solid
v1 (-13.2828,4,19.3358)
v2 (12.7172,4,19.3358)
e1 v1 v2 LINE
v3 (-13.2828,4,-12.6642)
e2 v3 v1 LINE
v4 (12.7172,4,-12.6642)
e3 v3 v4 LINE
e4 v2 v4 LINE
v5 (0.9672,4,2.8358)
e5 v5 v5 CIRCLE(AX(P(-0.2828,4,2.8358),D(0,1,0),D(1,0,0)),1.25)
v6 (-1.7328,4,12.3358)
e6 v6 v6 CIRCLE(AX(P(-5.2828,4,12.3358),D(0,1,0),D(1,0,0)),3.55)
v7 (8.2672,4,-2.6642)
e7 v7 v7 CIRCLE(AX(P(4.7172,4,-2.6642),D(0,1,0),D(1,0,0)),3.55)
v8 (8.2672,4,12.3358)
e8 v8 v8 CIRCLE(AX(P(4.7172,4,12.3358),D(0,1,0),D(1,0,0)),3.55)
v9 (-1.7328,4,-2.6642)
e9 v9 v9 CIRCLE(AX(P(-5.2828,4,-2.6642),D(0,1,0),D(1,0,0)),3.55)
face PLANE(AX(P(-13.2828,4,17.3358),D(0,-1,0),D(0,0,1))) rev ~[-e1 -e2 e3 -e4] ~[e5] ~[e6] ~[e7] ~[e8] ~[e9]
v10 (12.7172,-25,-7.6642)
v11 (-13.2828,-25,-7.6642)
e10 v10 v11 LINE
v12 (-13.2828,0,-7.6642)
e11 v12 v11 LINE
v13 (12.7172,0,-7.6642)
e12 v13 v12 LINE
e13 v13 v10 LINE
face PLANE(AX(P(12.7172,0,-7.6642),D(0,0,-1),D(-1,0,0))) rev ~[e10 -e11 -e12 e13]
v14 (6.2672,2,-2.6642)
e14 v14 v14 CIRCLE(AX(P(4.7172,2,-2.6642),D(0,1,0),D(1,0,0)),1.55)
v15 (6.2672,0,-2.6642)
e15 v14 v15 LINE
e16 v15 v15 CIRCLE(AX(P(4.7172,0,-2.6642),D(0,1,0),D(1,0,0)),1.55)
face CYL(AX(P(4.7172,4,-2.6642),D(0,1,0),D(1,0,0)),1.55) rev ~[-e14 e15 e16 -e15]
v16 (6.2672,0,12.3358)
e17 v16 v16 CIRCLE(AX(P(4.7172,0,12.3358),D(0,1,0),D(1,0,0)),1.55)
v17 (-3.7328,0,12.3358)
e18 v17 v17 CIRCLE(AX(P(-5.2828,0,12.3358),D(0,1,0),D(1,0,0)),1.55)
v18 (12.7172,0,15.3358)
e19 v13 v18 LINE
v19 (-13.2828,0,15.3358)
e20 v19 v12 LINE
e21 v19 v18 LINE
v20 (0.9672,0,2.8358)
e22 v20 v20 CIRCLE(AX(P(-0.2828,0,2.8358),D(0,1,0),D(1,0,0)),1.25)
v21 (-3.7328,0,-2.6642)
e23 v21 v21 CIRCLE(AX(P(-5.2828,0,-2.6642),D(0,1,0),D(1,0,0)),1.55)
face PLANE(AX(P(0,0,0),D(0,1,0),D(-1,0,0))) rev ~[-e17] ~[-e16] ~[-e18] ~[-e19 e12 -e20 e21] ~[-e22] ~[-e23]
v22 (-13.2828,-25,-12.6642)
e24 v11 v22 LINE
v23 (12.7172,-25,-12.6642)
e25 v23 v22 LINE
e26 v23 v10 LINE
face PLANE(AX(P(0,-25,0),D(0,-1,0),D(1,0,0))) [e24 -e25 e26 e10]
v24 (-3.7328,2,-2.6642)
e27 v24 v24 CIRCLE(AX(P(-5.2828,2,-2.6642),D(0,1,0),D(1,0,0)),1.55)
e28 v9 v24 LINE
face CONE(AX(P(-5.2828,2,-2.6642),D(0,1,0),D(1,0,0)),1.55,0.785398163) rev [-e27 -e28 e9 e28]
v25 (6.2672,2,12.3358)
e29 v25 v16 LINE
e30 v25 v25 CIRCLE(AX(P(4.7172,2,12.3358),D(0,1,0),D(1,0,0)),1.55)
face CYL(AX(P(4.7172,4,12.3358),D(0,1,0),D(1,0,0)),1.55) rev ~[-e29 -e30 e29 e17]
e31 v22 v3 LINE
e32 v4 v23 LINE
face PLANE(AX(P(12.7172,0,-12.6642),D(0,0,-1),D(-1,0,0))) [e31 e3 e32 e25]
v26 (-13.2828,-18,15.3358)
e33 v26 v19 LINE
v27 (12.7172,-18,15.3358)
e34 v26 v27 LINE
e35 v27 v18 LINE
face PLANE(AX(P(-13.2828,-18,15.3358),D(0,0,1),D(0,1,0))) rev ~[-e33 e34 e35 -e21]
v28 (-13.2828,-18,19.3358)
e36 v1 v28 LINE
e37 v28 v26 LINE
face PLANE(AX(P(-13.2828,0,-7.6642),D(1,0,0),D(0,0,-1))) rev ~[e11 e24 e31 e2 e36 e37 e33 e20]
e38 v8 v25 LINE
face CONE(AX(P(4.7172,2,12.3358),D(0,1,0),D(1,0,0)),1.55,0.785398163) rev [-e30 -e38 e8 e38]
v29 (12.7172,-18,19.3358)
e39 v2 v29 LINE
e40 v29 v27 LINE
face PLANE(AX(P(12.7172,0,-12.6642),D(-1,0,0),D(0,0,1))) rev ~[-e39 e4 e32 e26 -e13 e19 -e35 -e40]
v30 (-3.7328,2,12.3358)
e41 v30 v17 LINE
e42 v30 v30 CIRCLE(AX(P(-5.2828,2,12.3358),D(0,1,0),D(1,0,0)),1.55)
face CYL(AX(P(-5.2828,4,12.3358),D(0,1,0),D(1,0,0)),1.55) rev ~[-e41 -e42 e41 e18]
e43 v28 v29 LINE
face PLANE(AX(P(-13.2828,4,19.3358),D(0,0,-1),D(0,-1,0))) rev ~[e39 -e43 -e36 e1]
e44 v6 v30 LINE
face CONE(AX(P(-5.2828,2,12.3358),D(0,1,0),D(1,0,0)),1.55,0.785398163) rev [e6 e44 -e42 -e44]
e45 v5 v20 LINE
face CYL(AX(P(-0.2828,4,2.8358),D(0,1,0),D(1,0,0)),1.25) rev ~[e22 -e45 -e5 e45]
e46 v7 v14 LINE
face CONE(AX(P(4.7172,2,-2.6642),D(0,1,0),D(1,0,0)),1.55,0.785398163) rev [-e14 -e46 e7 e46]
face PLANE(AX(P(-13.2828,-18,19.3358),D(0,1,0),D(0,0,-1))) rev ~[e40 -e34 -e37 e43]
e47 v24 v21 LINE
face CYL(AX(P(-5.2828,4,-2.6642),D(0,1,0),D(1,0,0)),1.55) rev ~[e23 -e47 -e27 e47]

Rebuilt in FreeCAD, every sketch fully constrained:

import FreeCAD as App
import Part
import Sketcher
Q = App.Units.Quantity


def edges_at(feature, points):
    """Names of the edges that pass closest to the given points."""
    edges = feature.Shape.Edges
    near = lambda p: min(range(len(edges)), key=lambda i: edges[i].distToShape(Part.Vertex(*p))[0])
    return sorted({f"Edge{near(p) + 1}" for p in points})

doc = App.newDocument("Part")
body = doc.addObject("PartDesign::Body", "Body")

# Sketch on XZ plane
sketch1 = body.newObject("Sketcher::SketchObject", "Sketch")
sketch1.AttachmentSupport = (doc.getObject("XZ_Plane"), [""])
sketch1.MapMode = "FlatFace"
sketch1.addGeometry(Part.LineSegment(App.Vector(13, -13, 0), App.Vector(-13, -13, 0)), False)
sketch1.addGeometry(Part.LineSegment(App.Vector(-13, -13, 0), App.Vector(-13, 17, 0)), False)
sketch1.addGeometry(Part.LineSegment(App.Vector(-13, 17, 0), App.Vector(13, 17, 0)), False)
sketch1.addGeometry(Part.LineSegment(App.Vector(13, 17, 0), App.Vector(13, -13, 0)), False)
sketch1.addConstraint(Sketcher.Constraint("Coincident", 0, 2, 1, 1))
sketch1.addConstraint(Sketcher.Constraint("Coincident", 1, 2, 2, 1))
sketch1.addConstraint(Sketcher.Constraint("Coincident", 2, 2, 3, 1))
sketch1.addConstraint(Sketcher.Constraint("Coincident", 3, 2, 0, 1))
sketch1.addConstraint(Sketcher.Constraint("Horizontal", 0))
sketch1.addConstraint(Sketcher.Constraint("Vertical", 1))
sketch1.addConstraint(Sketcher.Constraint("Horizontal", 2))
sketch1.addConstraint(Sketcher.Constraint("Vertical", 3))
sketch1.addConstraint(Sketcher.Constraint("DistanceX", 0, 2, 0, 1, Q("26 mm")))
sketch1.addConstraint(Sketcher.Constraint("DistanceY", 1, 1, 1, 2, Q("30 mm")))
sketch1.addConstraint(Sketcher.Constraint("DistanceX", 0, 2, -1, 1, Q("13.2828 mm")))
sketch1.addConstraint(Sketcher.Constraint("DistanceY", 0, 2, -1, 1, Q("12.6642 mm")))
pad1 = body.newObject("PartDesign::Pad", "Pad")
pad1.Profile = sketch1
pad1.Length = 4
pad1.Reversed = True

# Sketch on XZ plane
sketch2 = body.newObject("Sketcher::SketchObject", "Sketch001")
sketch2.AttachmentSupport = (doc.getObject("XZ_Plane"), [""])
sketch2.MapMode = "FlatFace"
sketch2.AttachmentOffset = App.Placement(App.Vector(0, 0, -4), App.Rotation())
sketch2.addGeometry(Part.Circle(App.Vector(-5.3, -2.7, 0), App.Vector(0, 0, 1), 1.6), False)
sketch2.addGeometry(Part.Circle(App.Vector(4.7, -2.7, 0), App.Vector(0, 0, 1), 1.6), False)
sketch2.addGeometry(Part.Circle(App.Vector(-5.3, 12.3, 0), App.Vector(0, 0, 1), 1.6), False)
sketch2.addGeometry(Part.Circle(App.Vector(4.7, 12.3, 0), App.Vector(0, 0, 1), 1.6), False)
sketch2.addConstraint(Sketcher.Constraint("Equal", 0, 1))
sketch2.addConstraint(Sketcher.Constraint("Equal", 1, 2))
sketch2.addConstraint(Sketcher.Constraint("Equal", 2, 3))
sketch2.addConstraint(Sketcher.Constraint("Horizontal", 0, 3, 1, 3))
sketch2.addConstraint(Sketcher.Constraint("Horizontal", 2, 3, 3, 3))
sketch2.addConstraint(Sketcher.Constraint("Vertical", 0, 3, 2, 3))
sketch2.addConstraint(Sketcher.Constraint("Vertical", 1, 3, 3, 3))
sketch2.addConstraint(Sketcher.Constraint("Diameter", 0, Q("3.1 mm")))
sketch2.addConstraint(Sketcher.Constraint("DistanceX", 0, 3, 1, 3, Q("10 mm")))
sketch2.addConstraint(Sketcher.Constraint("DistanceY", 0, 3, 2, 3, Q("15 mm")))
sketch2.addConstraint(Sketcher.Constraint("DistanceX", 0, 3, -1, 1, Q("5.2828 mm")))
sketch2.addConstraint(Sketcher.Constraint("DistanceY", 0, 3, -1, 1, Q("2.6642 mm")))
pocket1 = body.newObject("PartDesign::Pocket", "Pocket")
pocket1.Profile = sketch2
pocket1.Type = "ThroughAll"
pocket1.Reversed = True

# Sketch on YZ plane
sketch3 = body.newObject("Sketcher::SketchObject", "Sketch002")
sketch3.AttachmentSupport = (doc.getObject("YZ_Plane"), [""])
sketch3.MapMode = "FlatFace"
sketch3.AttachmentOffset = App.Placement(App.Vector(0, 0, -13.2828), App.Rotation())
sketch3.addGeometry(Part.LineSegment(App.Vector(4, 19.3, 0), App.Vector(4, 15.3, 0)), False)
sketch3.addGeometry(Part.LineSegment(App.Vector(4, 15.3, 0), App.Vector(-18, 15.3, 0)), False)
sketch3.addGeometry(Part.LineSegment(App.Vector(-18, 15.3, 0), App.Vector(-18, 19.3, 0)), False)
sketch3.addGeometry(Part.LineSegment(App.Vector(-18, 19.3, 0), App.Vector(4, 19.3, 0)), False)
sketch3.addConstraint(Sketcher.Constraint("Coincident", 0, 2, 1, 1))
sketch3.addConstraint(Sketcher.Constraint("Coincident", 1, 2, 2, 1))
sketch3.addConstraint(Sketcher.Constraint("Coincident", 2, 2, 3, 1))
sketch3.addConstraint(Sketcher.Constraint("Coincident", 3, 2, 0, 1))
sketch3.addConstraint(Sketcher.Constraint("Vertical", 0))
sketch3.addConstraint(Sketcher.Constraint("Horizontal", 1))
sketch3.addConstraint(Sketcher.Constraint("Vertical", 2))
sketch3.addConstraint(Sketcher.Constraint("Horizontal", 3))
sketch3.addConstraint(Sketcher.Constraint("DistanceX", 1, 2, 1, 1, Q("22 mm")))
sketch3.addConstraint(Sketcher.Constraint("DistanceY", 0, 2, 0, 1, Q("4 mm")))
sketch3.addConstraint(Sketcher.Constraint("DistanceX", -1, 1, 0, 2, Q("4 mm")))
sketch3.addConstraint(Sketcher.Constraint("DistanceY", -1, 1, 0, 2, Q("15.3358 mm")))
pad2 = body.newObject("PartDesign::Pad", "Pad001")
pad2.Profile = sketch3
pad2.Length = 26
doc.recompute()

chamfer = body.newObject("PartDesign::Chamfer", "Chamfer")
chamfer.Base = (pad2, edges_at(pad2, [
    (-6.833, 4, 12.336),
    (3.167, 4, 12.336),
    (-6.833, 4, -2.664),
    (3.167, 4, -2.664),
]))
chamfer.Size = 2

# Sketch on XZ plane
sketch4 = body.newObject("Sketcher::SketchObject", "Sketch003")
sketch4.AttachmentSupport = (doc.getObject("XZ_Plane"), [""])
sketch4.MapMode = "FlatFace"
sketch4.AttachmentOffset = App.Placement(App.Vector(0, 0, -4), App.Rotation())
sketch4.addGeometry(Part.Circle(App.Vector(-0.3, 2.8, 0), App.Vector(0, 0, 1), 1.2), False)
sketch4.addConstraint(Sketcher.Constraint("Diameter", 0, Q("2.5 mm")))
sketch4.addConstraint(Sketcher.Constraint("DistanceX", 0, 3, -1, 1, Q("0.2828 mm")))
sketch4.addConstraint(Sketcher.Constraint("DistanceY", -1, 1, 0, 3, Q("2.8358 mm")))
pocket2 = body.newObject("PartDesign::Pocket", "Pocket001")
pocket2.Profile = sketch4
pocket2.Type = "ThroughAll"
pocket2.Reversed = True

# Sketch on XZ plane
sketch5 = body.newObject("Sketcher::SketchObject", "Sketch004")
sketch5.AttachmentSupport = (doc.getObject("XZ_Plane"), [""])
sketch5.MapMode = "FlatFace"
sketch5.addGeometry(Part.LineSegment(App.Vector(-13.3, -12.7, 0), App.Vector(12.7, -12.7, 0)), False)
sketch5.addGeometry(Part.LineSegment(App.Vector(12.7, -12.7, 0), App.Vector(12.7, -7.7, 0)), False)
sketch5.addGeometry(Part.LineSegment(App.Vector(12.7, -7.7, 0), App.Vector(-13.3, -7.7, 0)), False)
sketch5.addGeometry(Part.LineSegment(App.Vector(-13.3, -7.7, 0), App.Vector(-13.3, -12.7, 0)), False)
sketch5.addConstraint(Sketcher.Constraint("Coincident", 0, 2, 1, 1))
sketch5.addConstraint(Sketcher.Constraint("Coincident", 1, 2, 2, 1))
sketch5.addConstraint(Sketcher.Constraint("Coincident", 2, 2, 3, 1))
sketch5.addConstraint(Sketcher.Constraint("Coincident", 3, 2, 0, 1))
sketch5.addConstraint(Sketcher.Constraint("Horizontal", 0))
sketch5.addConstraint(Sketcher.Constraint("Vertical", 1))
sketch5.addConstraint(Sketcher.Constraint("Horizontal", 2))
sketch5.addConstraint(Sketcher.Constraint("Vertical", 3))
sketch5.addConstraint(Sketcher.Constraint("DistanceY", 1, 1, 1, 2, Q("5 mm")))
sketch5.addConstraint(Sketcher.Constraint("DistanceX", 0, 1, 0, 2, Q("26 mm")))
sketch5.addConstraint(Sketcher.Constraint("DistanceX", -1, 1, 0, 2, Q("12.7172 mm")))
sketch5.addConstraint(Sketcher.Constraint("DistanceY", 0, 2, -1, 1, Q("12.6642 mm")))
pad3 = body.newObject("PartDesign::Pad", "Pad002")
pad3.Profile = sketch5
pad3.Length = 25

doc.recompute()
